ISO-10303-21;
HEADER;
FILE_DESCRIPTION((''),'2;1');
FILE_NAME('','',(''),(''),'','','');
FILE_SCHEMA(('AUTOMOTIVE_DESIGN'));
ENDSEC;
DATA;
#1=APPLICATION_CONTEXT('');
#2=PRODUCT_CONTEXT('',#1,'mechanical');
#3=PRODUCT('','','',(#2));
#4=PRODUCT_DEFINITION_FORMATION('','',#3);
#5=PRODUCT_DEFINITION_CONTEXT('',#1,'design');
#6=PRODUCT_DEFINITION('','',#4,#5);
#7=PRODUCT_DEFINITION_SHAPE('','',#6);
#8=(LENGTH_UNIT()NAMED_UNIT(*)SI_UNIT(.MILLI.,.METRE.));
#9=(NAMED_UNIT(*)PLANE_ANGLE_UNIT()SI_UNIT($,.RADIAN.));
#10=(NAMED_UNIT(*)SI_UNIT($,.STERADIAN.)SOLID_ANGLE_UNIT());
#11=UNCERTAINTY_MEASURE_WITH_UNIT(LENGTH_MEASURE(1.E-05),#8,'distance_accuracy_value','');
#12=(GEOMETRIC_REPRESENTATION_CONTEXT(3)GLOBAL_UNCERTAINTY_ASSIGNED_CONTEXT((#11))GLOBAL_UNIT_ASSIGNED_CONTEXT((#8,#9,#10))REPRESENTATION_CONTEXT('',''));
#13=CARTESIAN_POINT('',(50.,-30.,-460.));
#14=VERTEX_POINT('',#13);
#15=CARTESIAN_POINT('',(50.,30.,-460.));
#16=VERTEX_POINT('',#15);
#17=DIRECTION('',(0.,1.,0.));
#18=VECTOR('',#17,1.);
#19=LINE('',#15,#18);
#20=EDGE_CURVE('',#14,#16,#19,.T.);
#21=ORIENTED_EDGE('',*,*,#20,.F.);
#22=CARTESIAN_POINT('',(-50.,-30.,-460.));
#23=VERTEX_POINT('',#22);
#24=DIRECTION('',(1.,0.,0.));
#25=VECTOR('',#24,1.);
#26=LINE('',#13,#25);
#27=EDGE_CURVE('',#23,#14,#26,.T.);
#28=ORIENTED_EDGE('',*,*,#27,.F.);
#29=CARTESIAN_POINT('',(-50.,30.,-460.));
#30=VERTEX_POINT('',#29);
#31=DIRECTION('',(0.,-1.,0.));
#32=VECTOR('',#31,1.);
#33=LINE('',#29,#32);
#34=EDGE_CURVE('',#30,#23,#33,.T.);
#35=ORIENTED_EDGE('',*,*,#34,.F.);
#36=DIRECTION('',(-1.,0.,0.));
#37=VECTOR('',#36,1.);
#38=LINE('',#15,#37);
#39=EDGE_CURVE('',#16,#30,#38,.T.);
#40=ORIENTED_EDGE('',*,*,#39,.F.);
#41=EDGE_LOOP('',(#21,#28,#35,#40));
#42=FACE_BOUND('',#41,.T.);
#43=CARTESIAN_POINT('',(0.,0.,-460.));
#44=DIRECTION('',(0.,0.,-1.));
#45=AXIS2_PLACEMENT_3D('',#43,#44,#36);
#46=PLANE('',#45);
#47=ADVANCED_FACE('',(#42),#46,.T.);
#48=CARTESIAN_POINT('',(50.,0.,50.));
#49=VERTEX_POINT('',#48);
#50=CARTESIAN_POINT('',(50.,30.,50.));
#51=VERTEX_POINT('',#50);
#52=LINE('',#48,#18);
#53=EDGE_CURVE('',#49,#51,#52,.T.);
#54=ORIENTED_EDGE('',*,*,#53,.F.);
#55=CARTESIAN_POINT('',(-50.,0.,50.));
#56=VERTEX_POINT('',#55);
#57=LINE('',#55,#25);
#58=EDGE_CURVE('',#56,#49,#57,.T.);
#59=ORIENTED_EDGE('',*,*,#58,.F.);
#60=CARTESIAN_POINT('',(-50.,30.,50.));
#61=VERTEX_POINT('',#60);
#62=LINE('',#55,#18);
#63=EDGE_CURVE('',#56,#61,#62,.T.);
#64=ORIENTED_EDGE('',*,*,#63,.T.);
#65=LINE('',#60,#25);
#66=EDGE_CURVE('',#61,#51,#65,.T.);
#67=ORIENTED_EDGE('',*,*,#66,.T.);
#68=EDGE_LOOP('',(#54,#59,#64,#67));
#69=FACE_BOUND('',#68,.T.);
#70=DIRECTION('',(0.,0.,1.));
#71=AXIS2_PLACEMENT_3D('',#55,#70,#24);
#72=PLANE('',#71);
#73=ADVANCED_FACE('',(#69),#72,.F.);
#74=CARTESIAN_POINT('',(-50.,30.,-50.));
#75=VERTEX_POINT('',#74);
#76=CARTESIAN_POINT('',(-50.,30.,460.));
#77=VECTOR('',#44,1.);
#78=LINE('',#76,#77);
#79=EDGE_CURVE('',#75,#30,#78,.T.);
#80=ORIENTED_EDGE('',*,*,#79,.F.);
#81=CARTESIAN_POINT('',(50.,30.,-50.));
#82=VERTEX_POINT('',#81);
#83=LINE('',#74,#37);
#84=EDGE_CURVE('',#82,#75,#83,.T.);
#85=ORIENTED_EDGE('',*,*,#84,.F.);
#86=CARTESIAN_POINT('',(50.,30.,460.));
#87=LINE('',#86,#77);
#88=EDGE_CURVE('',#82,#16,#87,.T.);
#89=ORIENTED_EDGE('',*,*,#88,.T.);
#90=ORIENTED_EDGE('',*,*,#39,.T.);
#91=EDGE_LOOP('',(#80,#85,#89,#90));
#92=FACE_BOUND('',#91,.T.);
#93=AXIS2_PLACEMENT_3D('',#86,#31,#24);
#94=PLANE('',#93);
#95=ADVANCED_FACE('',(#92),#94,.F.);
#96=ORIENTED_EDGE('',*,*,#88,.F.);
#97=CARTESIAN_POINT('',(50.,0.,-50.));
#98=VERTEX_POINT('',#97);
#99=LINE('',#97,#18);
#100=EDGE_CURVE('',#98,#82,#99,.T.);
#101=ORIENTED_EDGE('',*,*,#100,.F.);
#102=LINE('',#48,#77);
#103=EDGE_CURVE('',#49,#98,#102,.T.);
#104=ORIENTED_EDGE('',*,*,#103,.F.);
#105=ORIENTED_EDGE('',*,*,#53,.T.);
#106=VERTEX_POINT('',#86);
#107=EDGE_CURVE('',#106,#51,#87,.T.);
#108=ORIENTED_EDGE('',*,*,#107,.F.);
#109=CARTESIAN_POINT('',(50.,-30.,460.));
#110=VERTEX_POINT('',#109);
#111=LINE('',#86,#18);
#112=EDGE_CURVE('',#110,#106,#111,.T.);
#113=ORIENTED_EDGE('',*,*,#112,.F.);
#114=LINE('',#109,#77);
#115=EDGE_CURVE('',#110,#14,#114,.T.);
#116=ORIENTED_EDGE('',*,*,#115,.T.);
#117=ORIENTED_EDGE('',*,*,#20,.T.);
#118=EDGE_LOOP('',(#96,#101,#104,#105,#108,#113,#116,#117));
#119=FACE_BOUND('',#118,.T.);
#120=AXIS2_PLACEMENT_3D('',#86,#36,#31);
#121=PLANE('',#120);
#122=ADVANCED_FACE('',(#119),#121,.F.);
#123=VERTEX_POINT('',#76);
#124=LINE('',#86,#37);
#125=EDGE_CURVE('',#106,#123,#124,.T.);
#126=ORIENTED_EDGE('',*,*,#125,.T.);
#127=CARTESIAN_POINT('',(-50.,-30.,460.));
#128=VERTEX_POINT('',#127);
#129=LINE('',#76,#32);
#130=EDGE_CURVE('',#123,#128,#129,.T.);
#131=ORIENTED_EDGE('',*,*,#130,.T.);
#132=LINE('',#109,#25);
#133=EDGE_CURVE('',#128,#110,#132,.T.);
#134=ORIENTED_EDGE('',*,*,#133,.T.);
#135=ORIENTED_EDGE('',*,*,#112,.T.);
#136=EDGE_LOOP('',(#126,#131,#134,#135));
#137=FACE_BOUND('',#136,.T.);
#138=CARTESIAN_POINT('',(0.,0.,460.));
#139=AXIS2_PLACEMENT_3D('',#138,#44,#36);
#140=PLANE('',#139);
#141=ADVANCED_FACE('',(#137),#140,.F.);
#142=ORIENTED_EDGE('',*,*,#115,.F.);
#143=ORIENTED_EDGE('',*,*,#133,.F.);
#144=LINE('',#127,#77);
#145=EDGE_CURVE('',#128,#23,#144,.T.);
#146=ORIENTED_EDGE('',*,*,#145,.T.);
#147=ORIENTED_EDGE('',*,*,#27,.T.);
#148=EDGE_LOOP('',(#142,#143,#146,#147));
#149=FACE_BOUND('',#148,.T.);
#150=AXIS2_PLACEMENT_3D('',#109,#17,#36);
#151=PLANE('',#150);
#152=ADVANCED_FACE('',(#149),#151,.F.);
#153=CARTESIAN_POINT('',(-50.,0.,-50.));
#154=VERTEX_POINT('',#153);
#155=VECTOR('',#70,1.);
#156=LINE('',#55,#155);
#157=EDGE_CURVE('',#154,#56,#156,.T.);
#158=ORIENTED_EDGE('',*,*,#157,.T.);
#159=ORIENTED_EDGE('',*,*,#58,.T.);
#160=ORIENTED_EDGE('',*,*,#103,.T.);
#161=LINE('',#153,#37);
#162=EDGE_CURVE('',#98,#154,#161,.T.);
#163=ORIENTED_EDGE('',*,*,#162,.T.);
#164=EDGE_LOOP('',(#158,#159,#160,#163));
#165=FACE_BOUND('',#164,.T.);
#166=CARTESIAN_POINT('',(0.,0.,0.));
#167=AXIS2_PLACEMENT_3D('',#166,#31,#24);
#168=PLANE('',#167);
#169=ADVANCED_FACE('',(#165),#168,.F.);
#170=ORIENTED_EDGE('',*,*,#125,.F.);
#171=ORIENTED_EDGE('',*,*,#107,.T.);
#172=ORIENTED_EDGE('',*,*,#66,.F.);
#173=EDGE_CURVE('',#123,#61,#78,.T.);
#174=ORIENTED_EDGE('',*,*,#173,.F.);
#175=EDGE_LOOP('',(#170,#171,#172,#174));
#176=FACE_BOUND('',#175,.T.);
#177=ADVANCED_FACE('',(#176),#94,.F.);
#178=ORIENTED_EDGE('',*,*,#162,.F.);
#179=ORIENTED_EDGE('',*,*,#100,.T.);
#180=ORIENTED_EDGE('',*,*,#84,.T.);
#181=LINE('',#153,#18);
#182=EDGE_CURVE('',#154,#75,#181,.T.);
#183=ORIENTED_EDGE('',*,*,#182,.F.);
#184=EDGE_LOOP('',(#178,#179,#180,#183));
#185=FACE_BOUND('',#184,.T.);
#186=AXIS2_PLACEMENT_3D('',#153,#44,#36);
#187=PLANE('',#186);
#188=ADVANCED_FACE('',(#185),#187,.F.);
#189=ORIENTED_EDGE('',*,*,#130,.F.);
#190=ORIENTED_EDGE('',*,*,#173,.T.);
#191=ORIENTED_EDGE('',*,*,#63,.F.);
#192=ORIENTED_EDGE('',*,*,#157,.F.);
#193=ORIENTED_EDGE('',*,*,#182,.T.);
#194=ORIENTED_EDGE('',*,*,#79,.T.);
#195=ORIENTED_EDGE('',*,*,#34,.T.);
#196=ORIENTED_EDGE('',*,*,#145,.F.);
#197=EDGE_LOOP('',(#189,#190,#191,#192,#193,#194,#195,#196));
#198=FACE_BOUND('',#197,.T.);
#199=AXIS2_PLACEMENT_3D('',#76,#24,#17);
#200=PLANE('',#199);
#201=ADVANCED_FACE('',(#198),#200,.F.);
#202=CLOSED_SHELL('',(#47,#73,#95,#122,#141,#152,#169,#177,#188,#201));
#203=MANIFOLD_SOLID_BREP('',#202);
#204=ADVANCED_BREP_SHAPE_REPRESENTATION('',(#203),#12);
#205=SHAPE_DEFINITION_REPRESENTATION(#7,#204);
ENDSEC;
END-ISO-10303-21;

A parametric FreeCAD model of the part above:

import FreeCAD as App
import Part
import Sketcher
from FreeCAD import Vector

doc = App.newDocument("Part")
body = doc.addObject("PartDesign::Body", "Body")

sketch1 = doc.addObject("Sketcher::SketchObject", "Sketch")
body.addObject(sketch1)
sketch1.AttachmentSupport = (doc.XY_Plane, [""])
sketch1.MapMode = "FlatFace"
sketch1.addGeometry([
    Part.LineSegment(Vector(-50, 30, 0), Vector(-50, -30, 0)),
    Part.LineSegment(Vector(-50, -30, 0), Vector(50, -30, 0)),
    Part.LineSegment(Vector(50, -30, 0), Vector(50, 30, 0)),
    Part.LineSegment(Vector(50, 30, 0), Vector(-50, 30, 0)),
], False)
sketch1.addConstraint([
    Sketcher.Constraint("Coincident", 0, 2, 1, 1),
    Sketcher.Constraint("Coincident", 1, 2, 2, 1),
    Sketcher.Constraint("Coincident", 2, 2, 3, 1),
    Sketcher.Constraint("Coincident", 3, 2, 0, 1),
    Sketcher.Constraint("Vertical", 0),
    Sketcher.Constraint("Horizontal", 1),
    Sketcher.Constraint("Vertical", 2),
    Sketcher.Constraint("Horizontal", 3),
    Sketcher.Constraint("Symmetric", 0, 2, 2, 2, -1, 1),
    Sketcher.Constraint("DistanceX", 1, 1, 1, 2, 100.0),
    Sketcher.Constraint("DistanceY", 0, 2, 0, 1, 60.0),
])
pad1 = doc.addObject("PartDesign::Pad", "Pad")
body.addObject(pad1)
pad1.Profile = sketch1
pad1.Length = 920
pad1.Midplane = True

sketch2 = doc.addObject("Sketcher::SketchObject", "Sketch001")
body.addObject(sketch2)
sketch2.AttachmentSupport = (doc.XZ_Plane, [""])
sketch2.MapMode = "FlatFace"
sketch2.AttachmentOffset = App.Placement(Vector(0, 0, -30), App.Rotation())
sketch2.addGeometry([
    Part.LineSegment(Vector(-50, -50, 0), Vector(-50, 50, 0)),
    Part.LineSegment(Vector(-50, 50, 0), Vector(50, 50, 0)),
    Part.LineSegment(Vector(50, 50, 0), Vector(50, -50, 0)),
    Part.LineSegment(Vector(50, -50, 0), Vector(-50, -50, 0)),
], False)
sketch2.addConstraint([
    Sketcher.Constraint("Coincident", 0, 2, 1, 1),
    Sketcher.Constraint("Coincident", 1, 2, 2, 1),
    Sketcher.Constraint("Coincident", 2, 2, 3, 1),
    Sketcher.Constraint("Coincident", 3, 2, 0, 1),
    Sketcher.Constraint("Vertical", 0),
    Sketcher.Constraint("Horizontal", 1),
    Sketcher.Constraint("Vertical", 2),
    Sketcher.Constraint("Horizontal", 3),
    Sketcher.Constraint("Symmetric", 0, 2, 2, 2, -1, 1),
    Sketcher.Constraint("Equal", 3, 0),
    Sketcher.Constraint("DistanceX", 1, 1, 1, 2, 100.0),
])
pocket1 = doc.addObject("PartDesign::Pocket", "Pocket")
body.addObject(pocket1)
pocket1.Profile = sketch2
pocket1.Length = 30
pocket1.Reversed = True

doc.recompute()
